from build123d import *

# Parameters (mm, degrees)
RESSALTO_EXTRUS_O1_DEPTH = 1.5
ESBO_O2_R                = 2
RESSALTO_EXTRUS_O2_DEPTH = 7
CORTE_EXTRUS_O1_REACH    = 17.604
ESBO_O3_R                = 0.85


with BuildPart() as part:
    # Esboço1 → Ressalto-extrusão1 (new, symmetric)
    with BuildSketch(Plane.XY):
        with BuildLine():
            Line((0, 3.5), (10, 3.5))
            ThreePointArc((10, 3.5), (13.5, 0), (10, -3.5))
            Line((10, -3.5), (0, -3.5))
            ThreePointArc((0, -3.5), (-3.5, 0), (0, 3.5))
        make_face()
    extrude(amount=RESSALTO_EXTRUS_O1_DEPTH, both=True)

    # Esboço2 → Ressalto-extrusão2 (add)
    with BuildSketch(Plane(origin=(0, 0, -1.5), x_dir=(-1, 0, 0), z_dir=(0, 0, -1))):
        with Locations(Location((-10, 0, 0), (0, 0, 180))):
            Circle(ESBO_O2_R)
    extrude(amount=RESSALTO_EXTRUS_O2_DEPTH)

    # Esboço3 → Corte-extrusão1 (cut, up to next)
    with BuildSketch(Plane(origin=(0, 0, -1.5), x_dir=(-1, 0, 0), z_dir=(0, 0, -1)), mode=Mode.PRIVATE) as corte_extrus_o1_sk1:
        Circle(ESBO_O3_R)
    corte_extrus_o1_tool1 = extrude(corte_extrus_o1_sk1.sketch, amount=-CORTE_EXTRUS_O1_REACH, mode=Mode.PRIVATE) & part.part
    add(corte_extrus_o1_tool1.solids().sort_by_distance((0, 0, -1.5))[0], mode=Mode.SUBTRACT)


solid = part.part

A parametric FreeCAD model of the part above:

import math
import FreeCAD as App
import Part
import Sketcher
Q = App.Units.Quantity

doc = App.newDocument("Part")
body = doc.addObject("PartDesign::Body", "Body")

# Sketch on XY plane
sketch1 = body.newObject("Sketcher::SketchObject", "Sketch")
sketch1.AttachmentSupport = (doc.getObject("XY_Plane"), [""])
sketch1.MapMode = "FlatFace"
sketch1.addGeometry([
    Part.LineSegment(App.Vector(10, 3.5, 0), App.Vector(0, 3.5, 0)),
    Part.ArcOfCircle(Part.Circle(App.Vector(0, 0, 0), App.Vector(0, 0, 1), 3.5), math.radians(90), math.radians(270)),
    Part.LineSegment(App.Vector(0, -3.5, 0), App.Vector(10, -3.5, 0)),
    Part.ArcOfCircle(Part.Circle(App.Vector(10, 0, 0), App.Vector(0, 0, 1), 3.5), math.radians(-90), math.radians(90)),
], False)
sketch1.addConstraint([
    Sketcher.Constraint("Tangent", 0, 2, 1, 1),
    Sketcher.Constraint("Tangent", 1, 2, 2, 1),
    Sketcher.Constraint("Tangent", 2, 2, 3, 1),
    Sketcher.Constraint("Tangent", 3, 2, 0, 1),
    Sketcher.Constraint("Horizontal", 0),
    Sketcher.Constraint("Horizontal", 2),
    Sketcher.Constraint("Coincident", 1, 3, -1, 1),
    Sketcher.Constraint("Radius", 1, Q("3.5 mm")),
    Sketcher.Constraint("DistanceX", 0, 2, 0, 1, Q("10 mm")),
])
pad1 = body.newObject("PartDesign::Pad", "Pad")
pad1.Profile = sketch1
pad1.Length = 3
pad1.Midplane = True

# Sketch on XY plane
sketch2 = body.newObject("Sketcher::SketchObject", "Sketch001")
sketch2.AttachmentSupport = (doc.getObject("XY_Plane"), [""])
sketch2.MapMode = "FlatFace"
sketch2.AttachmentOffset = App.Placement(App.Vector(0, 0, -1.5), App.Rotation())
sketch2.addGeometry(Part.Circle(App.Vector(10, 0, 0), App.Vector(0, 0, 1), 2), False)
sketch2.addConstraint([
    Sketcher.Constraint("PointOnObject", 0, 3, -1),
    Sketcher.Constraint("Diameter", 0, Q("4 mm")),
    Sketcher.Constraint("DistanceX", -1, 1, 0, 3, Q("10 mm")),
])
pad2 = body.newObject("PartDesign::Pad", "Pad001")
pad2.Profile = sketch2
pad2.Length = 7
pad2.Reversed = True

# Sketch on XY plane
sketch3 = body.newObject("Sketcher::SketchObject", "Sketch002")
sketch3.AttachmentSupport = (doc.getObject("XY_Plane"), [""])
sketch3.MapMode = "FlatFace"
sketch3.AttachmentOffset = App.Placement(App.Vector(0, 0, -1.5), App.Rotation())
sketch3.addGeometry(Part.Circle(App.Vector(0, 0, 0), App.Vector(0, 0, 1), 0.85), False)
sketch3.addConstraint([
    Sketcher.Constraint("Coincident", 0, 3, -1, 1),
    Sketcher.Constraint("Diameter", 0, Q("1.7 mm")),
])
pocket1 = body.newObject("PartDesign::Pocket", "Pocket")
pocket1.Profile = sketch3
pocket1.Type = "UpToFirst"
pocket1.Reversed = True

doc.recompute()
